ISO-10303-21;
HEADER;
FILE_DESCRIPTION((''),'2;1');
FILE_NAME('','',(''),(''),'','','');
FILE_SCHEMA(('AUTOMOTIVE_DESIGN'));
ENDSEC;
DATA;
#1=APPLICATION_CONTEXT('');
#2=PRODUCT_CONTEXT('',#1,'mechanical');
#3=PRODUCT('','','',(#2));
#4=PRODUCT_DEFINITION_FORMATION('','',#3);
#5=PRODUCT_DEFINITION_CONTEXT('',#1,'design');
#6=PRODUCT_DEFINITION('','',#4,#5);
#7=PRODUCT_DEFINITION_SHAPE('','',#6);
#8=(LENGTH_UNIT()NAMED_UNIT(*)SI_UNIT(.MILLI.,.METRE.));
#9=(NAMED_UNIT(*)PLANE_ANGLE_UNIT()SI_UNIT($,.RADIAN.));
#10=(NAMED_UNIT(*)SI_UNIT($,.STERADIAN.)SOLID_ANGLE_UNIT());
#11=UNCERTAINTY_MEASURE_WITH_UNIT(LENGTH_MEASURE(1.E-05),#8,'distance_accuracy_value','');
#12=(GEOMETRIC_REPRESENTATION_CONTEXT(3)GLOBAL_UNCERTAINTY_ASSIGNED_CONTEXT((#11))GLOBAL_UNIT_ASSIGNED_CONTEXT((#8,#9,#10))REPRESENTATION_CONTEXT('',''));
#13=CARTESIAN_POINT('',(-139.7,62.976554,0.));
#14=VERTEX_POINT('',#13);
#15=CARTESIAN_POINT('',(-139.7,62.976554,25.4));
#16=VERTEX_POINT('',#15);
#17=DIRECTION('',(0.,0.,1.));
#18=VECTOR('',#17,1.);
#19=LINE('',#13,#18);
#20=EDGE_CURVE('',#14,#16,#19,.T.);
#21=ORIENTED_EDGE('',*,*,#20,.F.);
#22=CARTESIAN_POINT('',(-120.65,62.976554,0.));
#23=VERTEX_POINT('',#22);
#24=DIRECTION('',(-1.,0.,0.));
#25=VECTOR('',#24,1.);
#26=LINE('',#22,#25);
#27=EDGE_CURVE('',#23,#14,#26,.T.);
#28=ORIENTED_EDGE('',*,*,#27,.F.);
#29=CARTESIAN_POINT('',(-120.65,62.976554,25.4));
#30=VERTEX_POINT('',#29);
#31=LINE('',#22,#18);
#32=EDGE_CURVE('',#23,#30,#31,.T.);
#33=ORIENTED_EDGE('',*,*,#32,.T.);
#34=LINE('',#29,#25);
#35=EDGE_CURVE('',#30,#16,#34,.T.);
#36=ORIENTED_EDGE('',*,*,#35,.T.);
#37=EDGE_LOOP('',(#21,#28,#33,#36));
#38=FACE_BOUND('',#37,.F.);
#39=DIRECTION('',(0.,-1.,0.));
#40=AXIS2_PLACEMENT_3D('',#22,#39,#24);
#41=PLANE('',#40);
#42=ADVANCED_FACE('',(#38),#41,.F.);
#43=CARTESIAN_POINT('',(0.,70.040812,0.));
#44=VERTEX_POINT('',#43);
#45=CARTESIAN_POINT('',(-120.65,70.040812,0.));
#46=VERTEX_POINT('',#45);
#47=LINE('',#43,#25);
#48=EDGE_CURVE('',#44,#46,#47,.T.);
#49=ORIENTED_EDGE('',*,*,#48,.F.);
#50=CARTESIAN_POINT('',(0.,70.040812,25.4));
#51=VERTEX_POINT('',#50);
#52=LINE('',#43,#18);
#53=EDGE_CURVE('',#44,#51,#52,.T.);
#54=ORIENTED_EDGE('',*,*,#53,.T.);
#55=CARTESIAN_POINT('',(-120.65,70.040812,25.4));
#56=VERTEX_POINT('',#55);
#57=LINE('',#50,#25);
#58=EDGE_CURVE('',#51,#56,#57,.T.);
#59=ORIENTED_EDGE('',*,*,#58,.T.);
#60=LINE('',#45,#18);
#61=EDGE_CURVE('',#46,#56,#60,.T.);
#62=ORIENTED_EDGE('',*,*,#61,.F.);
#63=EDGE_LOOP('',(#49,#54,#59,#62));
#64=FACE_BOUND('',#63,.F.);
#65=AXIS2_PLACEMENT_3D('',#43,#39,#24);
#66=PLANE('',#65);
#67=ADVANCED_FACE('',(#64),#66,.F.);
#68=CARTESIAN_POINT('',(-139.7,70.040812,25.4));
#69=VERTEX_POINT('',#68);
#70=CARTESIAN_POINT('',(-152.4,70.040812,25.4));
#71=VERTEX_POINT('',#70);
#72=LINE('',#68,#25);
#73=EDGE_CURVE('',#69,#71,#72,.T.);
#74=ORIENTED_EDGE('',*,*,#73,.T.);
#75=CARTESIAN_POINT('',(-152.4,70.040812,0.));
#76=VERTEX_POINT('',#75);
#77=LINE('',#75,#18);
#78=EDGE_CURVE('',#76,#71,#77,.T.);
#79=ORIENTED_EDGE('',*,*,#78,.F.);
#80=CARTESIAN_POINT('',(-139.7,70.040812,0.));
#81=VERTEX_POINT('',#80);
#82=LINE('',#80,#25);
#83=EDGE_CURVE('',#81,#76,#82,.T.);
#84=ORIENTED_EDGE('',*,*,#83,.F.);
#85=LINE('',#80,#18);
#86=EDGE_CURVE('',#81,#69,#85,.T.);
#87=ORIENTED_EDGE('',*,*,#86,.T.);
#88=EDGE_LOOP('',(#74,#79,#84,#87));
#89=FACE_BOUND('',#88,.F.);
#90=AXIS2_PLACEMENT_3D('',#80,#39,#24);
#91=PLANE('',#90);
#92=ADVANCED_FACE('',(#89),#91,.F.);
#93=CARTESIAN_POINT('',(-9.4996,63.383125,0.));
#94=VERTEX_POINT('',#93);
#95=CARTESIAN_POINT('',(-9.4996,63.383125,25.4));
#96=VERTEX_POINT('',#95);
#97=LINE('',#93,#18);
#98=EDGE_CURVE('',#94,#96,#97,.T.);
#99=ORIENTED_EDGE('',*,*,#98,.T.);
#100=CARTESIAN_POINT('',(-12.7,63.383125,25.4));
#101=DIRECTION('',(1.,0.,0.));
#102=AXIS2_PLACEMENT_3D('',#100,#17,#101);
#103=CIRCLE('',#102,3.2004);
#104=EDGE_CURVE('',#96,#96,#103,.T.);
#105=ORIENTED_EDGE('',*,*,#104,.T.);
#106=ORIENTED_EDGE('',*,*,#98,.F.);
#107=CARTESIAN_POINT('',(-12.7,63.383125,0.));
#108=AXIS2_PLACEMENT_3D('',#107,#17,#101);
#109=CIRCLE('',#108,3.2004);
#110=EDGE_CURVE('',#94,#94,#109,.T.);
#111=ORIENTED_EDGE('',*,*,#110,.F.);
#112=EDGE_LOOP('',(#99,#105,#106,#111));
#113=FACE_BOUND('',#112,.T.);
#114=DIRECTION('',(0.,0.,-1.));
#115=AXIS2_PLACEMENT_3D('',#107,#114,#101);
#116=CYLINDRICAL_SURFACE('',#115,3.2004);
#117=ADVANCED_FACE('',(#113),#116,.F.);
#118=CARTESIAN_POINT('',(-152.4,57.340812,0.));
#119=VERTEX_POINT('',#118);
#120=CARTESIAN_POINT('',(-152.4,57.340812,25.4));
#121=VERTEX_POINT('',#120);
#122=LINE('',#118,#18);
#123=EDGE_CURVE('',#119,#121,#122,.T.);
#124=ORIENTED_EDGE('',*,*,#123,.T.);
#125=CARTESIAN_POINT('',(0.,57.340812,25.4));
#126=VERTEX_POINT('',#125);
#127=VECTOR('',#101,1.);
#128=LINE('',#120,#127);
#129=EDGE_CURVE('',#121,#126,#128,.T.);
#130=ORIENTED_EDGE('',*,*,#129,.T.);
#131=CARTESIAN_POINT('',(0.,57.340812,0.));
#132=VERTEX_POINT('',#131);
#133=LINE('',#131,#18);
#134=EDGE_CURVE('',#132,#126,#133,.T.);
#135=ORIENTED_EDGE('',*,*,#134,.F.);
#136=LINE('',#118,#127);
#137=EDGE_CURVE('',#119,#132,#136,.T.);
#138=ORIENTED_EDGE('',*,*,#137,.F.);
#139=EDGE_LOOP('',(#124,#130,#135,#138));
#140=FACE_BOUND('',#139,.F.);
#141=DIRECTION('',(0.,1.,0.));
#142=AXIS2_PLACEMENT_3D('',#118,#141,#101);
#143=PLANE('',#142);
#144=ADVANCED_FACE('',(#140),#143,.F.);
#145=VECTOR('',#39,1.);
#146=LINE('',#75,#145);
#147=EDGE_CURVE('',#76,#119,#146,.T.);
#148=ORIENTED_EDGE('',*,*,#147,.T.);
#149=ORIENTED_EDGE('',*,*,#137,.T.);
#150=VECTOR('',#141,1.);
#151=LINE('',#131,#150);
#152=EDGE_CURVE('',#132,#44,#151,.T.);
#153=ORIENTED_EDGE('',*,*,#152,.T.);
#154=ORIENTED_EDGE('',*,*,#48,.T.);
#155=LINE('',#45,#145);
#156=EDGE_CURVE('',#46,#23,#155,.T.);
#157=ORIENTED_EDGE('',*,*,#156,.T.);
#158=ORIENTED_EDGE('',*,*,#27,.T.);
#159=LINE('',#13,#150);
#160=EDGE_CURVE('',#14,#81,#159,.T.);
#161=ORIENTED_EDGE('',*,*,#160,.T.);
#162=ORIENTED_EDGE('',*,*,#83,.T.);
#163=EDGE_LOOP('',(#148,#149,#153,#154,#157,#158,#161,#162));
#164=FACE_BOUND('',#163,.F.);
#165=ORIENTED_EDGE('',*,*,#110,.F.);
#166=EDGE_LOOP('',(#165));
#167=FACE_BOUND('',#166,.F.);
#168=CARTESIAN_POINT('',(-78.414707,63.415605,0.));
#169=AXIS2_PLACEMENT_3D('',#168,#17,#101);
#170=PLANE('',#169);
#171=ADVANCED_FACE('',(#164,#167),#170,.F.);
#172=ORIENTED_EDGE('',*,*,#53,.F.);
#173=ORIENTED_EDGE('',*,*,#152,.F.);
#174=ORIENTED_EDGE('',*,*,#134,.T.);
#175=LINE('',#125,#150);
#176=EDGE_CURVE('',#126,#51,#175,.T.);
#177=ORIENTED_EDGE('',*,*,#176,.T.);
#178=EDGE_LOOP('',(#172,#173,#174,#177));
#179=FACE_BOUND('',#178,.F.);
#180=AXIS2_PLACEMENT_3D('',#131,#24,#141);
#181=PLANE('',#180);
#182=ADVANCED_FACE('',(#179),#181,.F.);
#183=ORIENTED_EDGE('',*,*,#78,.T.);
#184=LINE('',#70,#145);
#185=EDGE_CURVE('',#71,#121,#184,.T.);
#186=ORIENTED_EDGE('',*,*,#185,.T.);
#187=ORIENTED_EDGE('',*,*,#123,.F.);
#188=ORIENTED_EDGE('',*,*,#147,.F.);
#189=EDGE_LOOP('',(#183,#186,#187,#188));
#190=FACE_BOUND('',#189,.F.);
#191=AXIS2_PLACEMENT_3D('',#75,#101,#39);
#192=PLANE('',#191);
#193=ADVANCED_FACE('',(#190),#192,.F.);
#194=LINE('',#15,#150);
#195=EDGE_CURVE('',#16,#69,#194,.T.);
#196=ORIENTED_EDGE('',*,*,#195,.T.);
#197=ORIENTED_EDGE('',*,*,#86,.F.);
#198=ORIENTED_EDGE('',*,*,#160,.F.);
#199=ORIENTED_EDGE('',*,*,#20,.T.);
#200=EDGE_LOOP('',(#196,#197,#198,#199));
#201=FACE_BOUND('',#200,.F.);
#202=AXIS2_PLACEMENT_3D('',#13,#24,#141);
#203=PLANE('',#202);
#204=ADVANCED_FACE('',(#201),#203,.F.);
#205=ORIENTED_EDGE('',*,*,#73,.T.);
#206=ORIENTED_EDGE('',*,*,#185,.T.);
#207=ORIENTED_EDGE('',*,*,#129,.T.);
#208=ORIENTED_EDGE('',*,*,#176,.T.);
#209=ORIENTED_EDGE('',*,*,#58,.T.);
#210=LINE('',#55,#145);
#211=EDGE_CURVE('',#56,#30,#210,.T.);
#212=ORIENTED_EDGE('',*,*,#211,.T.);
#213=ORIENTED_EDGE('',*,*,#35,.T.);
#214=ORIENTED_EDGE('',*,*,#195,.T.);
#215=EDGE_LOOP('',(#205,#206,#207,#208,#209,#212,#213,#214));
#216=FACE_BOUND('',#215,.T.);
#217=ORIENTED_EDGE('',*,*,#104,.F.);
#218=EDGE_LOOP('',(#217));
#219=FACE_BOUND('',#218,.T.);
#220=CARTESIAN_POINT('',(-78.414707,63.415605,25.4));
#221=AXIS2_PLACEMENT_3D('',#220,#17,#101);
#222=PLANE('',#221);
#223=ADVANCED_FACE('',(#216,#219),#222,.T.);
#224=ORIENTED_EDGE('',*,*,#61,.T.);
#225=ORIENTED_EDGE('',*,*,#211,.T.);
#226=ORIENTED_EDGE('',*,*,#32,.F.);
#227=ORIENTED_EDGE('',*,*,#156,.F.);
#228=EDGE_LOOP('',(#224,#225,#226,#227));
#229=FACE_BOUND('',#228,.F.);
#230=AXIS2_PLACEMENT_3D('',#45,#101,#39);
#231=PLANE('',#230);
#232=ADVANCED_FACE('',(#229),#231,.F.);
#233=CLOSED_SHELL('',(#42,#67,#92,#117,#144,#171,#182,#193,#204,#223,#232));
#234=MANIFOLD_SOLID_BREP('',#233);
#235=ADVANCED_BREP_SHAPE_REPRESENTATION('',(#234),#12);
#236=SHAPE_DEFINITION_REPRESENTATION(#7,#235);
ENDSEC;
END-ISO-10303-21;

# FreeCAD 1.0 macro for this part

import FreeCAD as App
import Part
import Sketcher
from FreeCAD import Vector
Q = App.Units.Quantity


def add_polygon(sketch, points):
    """Adds a closed chain of lines whose ends are joined by coincident constraints."""
    first, n = sketch.GeometryCount, len(points)
    for a, b in zip(points, points[1:] + points[:1]):
        sketch.addGeometry(Part.LineSegment(App.Vector(*a, 0), App.Vector(*b, 0)), False)
    for i in range(n):
        sketch.addConstraint(Sketcher.Constraint("Coincident", first + i, 2, first + (i + 1) % n, 1))

doc = App.newDocument("Part")
body = doc.addObject("PartDesign::Body", "Body")

# Sketch on XY plane
sketch1 = body.newObject("Sketcher::SketchObject", "Sketch")
sketch1.AttachmentSupport = (doc.getObject("XY_Plane"), [""])
sketch1.MapMode = "FlatFace"
add_polygon(sketch1, [(-139.7, 62.976554), (-139.7, 70.040812), (-152.4, 70.040812), (-152.4, 57.340812), (0, 57.340812), (0, 70.040812), (-120.65, 70.040812), (-120.65, 62.976554)])  # lines 0-7
sketch1.addGeometry(Part.Circle(Vector(-12.7, 63.383125, 0), Vector(0, 0, 1), 3.2004), False)  # 8
sketch1.addConstraint(Sketcher.Constraint("Vertical", 0))
sketch1.addConstraint(Sketcher.Constraint("Horizontal", 1))
sketch1.addConstraint(Sketcher.Constraint("Vertical", 2))
sketch1.addConstraint(Sketcher.Constraint("Horizontal", 3))
sketch1.addConstraint(Sketcher.Constraint("Vertical", 4))
sketch1.addConstraint(Sketcher.Constraint("Horizontal", 5))
sketch1.addConstraint(Sketcher.Constraint("Vertical", 6))
sketch1.addConstraint(Sketcher.Constraint("Horizontal", 7))
sketch1.addConstraint(Sketcher.Constraint("PointOnObject", 3, 2, -2))
sketch1.addConstraint(Sketcher.Constraint("Horizontal", 1, 2, 4, 2))
sketch1.addConstraint(Sketcher.Constraint("Equal", 1, 2))
sketch1.addConstraint(Sketcher.Constraint("DistanceX", 3, 1, 3, 2, Q("6 in")))
sketch1.addConstraint(Sketcher.Constraint("Diameter", 8, Q("0.252 in")))
sketch1.addConstraint(Sketcher.Constraint("DistanceX", 1, 2, 1, 1, Q("0.5 in")))
sketch1.addConstraint(Sketcher.Constraint("DistanceX", 0, 2, 8, 3, Q("5 in")))
sketch1.addConstraint(Sketcher.Constraint("DistanceX", 5, 2, 5, 1, Q("4.75 in")))
sketch1.addConstraint(Sketcher.Constraint("DistanceY", 0, 1, 0, 2, Q("7.064258 mm")))
sketch1.addConstraint(Sketcher.Constraint("DistanceY", 6, 2, 8, 3, Q("0.406571 mm")))
sketch1.addConstraint(Sketcher.Constraint("DistanceY", -1, 1, 8, 3, Q("63.383125 mm")))
pad1 = body.newObject("PartDesign::Pad", "Pad")
pad1.Profile = sketch1
pad1.Length = Q("1 in")

doc.recompute()
